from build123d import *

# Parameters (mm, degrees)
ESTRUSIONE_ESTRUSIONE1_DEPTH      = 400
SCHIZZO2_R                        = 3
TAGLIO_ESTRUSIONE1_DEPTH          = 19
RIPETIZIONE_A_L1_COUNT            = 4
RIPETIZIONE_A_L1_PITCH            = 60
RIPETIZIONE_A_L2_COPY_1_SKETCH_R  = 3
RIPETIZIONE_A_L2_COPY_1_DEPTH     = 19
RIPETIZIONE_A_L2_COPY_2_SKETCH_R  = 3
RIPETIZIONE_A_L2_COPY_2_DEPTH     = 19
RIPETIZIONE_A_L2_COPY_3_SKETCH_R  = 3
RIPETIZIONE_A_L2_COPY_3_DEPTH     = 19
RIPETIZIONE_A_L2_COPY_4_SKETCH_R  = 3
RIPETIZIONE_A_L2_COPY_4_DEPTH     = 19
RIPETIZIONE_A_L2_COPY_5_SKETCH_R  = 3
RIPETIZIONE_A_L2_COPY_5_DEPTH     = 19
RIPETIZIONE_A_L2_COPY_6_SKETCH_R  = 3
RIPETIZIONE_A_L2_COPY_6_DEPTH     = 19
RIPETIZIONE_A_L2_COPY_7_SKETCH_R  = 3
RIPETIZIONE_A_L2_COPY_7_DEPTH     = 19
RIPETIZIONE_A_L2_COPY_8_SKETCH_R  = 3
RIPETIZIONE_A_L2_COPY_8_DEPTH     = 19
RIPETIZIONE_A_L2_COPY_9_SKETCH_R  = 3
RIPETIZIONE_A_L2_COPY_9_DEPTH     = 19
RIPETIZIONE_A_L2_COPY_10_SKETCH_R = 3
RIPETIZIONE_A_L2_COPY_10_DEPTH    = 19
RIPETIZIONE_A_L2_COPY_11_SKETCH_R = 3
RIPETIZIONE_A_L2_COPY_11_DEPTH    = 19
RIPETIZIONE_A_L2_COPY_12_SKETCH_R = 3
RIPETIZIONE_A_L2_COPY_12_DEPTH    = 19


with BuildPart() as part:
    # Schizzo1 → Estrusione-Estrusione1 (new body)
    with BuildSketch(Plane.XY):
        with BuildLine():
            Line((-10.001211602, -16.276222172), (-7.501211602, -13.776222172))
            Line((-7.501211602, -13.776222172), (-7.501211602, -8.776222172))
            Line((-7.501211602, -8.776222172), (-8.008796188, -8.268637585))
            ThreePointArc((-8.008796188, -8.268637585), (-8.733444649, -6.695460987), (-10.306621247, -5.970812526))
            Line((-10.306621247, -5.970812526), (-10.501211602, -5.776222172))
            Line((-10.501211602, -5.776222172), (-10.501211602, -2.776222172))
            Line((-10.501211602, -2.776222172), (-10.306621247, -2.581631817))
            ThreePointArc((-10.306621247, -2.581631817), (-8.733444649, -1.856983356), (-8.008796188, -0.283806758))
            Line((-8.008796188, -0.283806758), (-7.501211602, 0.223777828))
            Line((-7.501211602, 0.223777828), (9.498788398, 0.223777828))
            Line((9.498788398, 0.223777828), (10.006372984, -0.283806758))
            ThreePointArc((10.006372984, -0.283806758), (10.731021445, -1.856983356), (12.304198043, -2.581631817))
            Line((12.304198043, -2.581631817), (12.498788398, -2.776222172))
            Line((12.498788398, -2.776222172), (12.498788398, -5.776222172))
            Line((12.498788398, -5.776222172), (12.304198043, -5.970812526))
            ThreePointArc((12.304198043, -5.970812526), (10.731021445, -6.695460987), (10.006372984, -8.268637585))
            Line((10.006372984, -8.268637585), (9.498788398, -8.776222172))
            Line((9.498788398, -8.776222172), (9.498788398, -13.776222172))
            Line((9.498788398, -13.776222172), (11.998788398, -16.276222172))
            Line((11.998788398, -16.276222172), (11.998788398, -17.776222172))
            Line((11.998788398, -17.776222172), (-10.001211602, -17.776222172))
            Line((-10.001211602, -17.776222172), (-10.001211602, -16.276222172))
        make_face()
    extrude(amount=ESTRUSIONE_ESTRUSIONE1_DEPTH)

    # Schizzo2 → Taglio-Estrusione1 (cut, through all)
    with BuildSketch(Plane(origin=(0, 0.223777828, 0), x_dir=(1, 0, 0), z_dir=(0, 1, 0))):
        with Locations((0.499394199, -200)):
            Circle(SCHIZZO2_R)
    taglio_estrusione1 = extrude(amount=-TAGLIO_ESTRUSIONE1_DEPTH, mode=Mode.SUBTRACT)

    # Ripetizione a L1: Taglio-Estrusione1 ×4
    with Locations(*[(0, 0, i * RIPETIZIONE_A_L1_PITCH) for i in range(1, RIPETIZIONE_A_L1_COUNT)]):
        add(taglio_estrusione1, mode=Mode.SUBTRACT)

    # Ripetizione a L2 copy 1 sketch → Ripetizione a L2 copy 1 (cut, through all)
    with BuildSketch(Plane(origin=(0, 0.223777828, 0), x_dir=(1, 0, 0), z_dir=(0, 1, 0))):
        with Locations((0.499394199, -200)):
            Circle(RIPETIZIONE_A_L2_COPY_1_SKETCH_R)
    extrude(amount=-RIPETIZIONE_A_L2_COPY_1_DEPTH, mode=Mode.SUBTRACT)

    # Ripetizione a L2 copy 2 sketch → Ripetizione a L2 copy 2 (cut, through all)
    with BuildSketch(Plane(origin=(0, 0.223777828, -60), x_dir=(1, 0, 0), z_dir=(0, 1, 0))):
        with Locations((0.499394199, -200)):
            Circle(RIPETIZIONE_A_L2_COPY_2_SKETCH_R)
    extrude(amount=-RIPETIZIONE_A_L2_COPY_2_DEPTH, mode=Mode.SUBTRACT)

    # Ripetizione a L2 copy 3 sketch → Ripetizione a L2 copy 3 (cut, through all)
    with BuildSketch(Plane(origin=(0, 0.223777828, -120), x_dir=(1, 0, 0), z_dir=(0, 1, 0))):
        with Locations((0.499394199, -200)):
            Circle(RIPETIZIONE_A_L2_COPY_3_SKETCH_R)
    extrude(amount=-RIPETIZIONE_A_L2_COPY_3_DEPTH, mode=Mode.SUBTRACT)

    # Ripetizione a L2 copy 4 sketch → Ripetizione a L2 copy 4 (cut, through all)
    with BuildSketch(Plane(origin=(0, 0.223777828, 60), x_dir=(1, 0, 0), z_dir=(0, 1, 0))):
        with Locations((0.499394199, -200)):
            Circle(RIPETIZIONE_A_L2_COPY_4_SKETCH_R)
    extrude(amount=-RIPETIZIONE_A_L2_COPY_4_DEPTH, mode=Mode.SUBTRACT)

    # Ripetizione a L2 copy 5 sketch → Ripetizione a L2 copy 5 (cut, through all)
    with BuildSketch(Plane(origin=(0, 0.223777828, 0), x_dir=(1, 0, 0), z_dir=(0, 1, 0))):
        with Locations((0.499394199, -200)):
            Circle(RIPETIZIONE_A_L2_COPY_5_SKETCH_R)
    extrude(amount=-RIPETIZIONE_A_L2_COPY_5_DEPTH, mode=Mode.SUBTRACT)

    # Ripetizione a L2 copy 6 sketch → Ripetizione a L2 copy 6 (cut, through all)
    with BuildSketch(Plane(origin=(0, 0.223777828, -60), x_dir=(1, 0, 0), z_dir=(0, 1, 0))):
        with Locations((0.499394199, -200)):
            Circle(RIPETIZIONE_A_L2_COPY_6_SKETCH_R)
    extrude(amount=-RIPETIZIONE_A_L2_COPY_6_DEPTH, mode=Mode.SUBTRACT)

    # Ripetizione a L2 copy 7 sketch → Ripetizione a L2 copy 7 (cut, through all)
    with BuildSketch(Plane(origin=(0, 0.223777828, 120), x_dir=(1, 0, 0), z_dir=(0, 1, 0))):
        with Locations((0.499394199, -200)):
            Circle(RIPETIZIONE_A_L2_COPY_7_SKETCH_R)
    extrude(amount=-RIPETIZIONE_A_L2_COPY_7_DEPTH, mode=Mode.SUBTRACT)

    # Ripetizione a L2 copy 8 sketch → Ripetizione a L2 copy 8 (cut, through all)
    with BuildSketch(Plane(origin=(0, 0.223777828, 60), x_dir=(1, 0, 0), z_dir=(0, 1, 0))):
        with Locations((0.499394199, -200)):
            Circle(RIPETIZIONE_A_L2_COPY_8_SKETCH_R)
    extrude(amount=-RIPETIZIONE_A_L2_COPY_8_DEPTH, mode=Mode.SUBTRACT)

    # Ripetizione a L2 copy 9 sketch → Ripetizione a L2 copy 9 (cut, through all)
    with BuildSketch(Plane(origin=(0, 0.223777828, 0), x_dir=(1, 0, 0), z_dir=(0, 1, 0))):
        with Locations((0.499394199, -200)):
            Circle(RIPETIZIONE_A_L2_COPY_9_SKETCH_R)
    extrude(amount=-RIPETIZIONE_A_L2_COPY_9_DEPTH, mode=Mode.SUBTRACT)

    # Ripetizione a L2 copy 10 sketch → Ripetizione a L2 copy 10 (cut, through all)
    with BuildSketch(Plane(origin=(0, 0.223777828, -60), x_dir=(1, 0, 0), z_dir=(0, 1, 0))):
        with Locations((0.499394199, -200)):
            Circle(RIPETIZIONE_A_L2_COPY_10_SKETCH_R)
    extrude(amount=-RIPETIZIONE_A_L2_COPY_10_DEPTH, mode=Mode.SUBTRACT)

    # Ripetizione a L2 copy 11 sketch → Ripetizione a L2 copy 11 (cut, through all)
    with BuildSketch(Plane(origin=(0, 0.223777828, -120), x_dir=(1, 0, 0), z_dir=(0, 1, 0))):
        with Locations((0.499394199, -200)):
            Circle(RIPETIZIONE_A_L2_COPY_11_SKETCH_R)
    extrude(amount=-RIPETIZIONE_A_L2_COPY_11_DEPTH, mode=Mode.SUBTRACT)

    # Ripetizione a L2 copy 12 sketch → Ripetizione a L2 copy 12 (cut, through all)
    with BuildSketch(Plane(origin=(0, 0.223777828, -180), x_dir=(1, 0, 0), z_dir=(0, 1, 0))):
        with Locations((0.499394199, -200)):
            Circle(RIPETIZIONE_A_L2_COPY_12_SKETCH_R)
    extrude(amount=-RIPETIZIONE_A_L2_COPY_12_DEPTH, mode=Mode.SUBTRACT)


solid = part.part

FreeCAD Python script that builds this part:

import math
import FreeCAD as App
import Part
import Sketcher
from FreeCAD import Vector

doc = App.newDocument("Part")
params = doc.addObject("Spreadsheet::Sheet", "Params")
for row, (alias, value) in enumerate([
    ("sketch1_radius", "2.5 mm"),
    ("sketch1_width", "22 mm"),
    ("sketch1_width2", "17 mm"),
    ("sketch1_height", "5 mm"),
    ("sketch1_height2", "3 mm"),
    ("pad1_length", "400 mm"),
    ("sketch2_diameter", "6 mm"),
    ("linearpattern_pitch", "60 mm"),
    ("sketch3_diameter", "6 mm"),
    ("sketch4_diameter", "6 mm"),
    ("sketch5_diameter", "6 mm"),
    ("sketch6_diameter", "6 mm"),
    ("sketch7_diameter", "6 mm"),
    ("sketch8_diameter", "6 mm"),
    ("sketch9_diameter", "6 mm"),
    ("sketch10_diameter", "6 mm"),
    ("sketch11_diameter", "6 mm"),
    ("sketch12_diameter", "6 mm"),
    ("sketch13_diameter", "6 mm"),
    ("sketch14_diameter", "6 mm"),
], start=1):
    params.set(f"A{row}", alias)
    params.set(f"B{row}", "=" + value)
    params.setAlias(f"B{row}", alias)

body = doc.addObject("PartDesign::Body", "Body")

# Sketch on XY plane
sketch1 = body.newObject("Sketcher::SketchObject", "Sketch")
sketch1.AttachmentSupport = (doc.getObject("XY_Plane"), [""])
sketch1.MapMode = "FlatFace"
sketch1.addGeometry([
    Part.LineSegment(Vector(-7.5, -13.78, 0), Vector(-10, -16.28, 0)),  # 0
    Part.LineSegment(Vector(-10, -16.28, 0), Vector(-10, -17.78, 0)),  # 1
    Part.LineSegment(Vector(-10, -17.78, 0), Vector(12, -17.78, 0)),  # 2
    Part.LineSegment(Vector(12, -17.78, 0), Vector(12, -16.28, 0)),  # 3
    Part.LineSegment(Vector(12, -16.28, 0), Vector(9.5, -13.78, 0)),  # 4
    Part.LineSegment(Vector(9.5, -13.78, 0), Vector(9.5, -8.78, 0)),  # 5
    Part.LineSegment(Vector(9.5, -8.78, 0), Vector(10.01, -8.27, 0)),  # 6
    Part.ArcOfCircle(Part.Circle(Vector(12.5, -8.46, 0), Vector(0, 0, 1), 2.5), math.radians(94), math.radians(176)),  # 7
    Part.LineSegment(Vector(12.3, -5.97, 0), Vector(12.5, -5.78, 0)),  # 8
    Part.LineSegment(Vector(12.5, -5.78, 0), Vector(12.5, -2.78, 0)),  # 9
    Part.LineSegment(Vector(12.5, -2.78, 0), Vector(12.3, -2.58, 0)),  # 10
    Part.ArcOfCircle(Part.Circle(Vector(12.5, -0.09, 0), Vector(0, 0, 1), 2.5), math.radians(-176), math.radians(-94)),  # 11
    Part.LineSegment(Vector(10.01, -0.28, 0), Vector(9.5, 0.22, 0)),  # 12
    Part.LineSegment(Vector(9.5, 0.22, 0), Vector(-7.5, 0.22, 0)),  # 13
    Part.LineSegment(Vector(-7.5, 0.22, 0), Vector(-8.01, -0.28, 0)),  # 14
    Part.ArcOfCircle(Part.Circle(Vector(-10.5, -0.09, 0), Vector(0, 0, 1), 2.5), math.radians(-86), math.radians(-4)),  # 15
    Part.LineSegment(Vector(-10.31, -2.58, 0), Vector(-10.5, -2.78, 0)),  # 16
    Part.LineSegment(Vector(-10.5, -2.78, 0), Vector(-10.5, -5.78, 0)),  # 17
    Part.LineSegment(Vector(-10.5, -5.78, 0), Vector(-10.31, -5.97, 0)),  # 18
    Part.ArcOfCircle(Part.Circle(Vector(-10.5, -8.46, 0), Vector(0, 0, 1), 2.5), math.radians(4), math.radians(86)),  # 19
    Part.LineSegment(Vector(-8.01, -8.27, 0), Vector(-7.5, -8.78, 0)),  # 20
    Part.LineSegment(Vector(-7.5, -8.78, 0), Vector(-7.5, -13.78, 0)),  # 21
], False)
sketch1.addConstraint([
    Sketcher.Constraint("Coincident", 0, 2, 1, 1),
    Sketcher.Constraint("Coincident", 1, 2, 2, 1),
    Sketcher.Constraint("Coincident", 2, 2, 3, 1),
    Sketcher.Constraint("Coincident", 3, 2, 4, 1),
    Sketcher.Constraint("Coincident", 4, 2, 5, 1),
    Sketcher.Constraint("Coincident", 5, 2, 6, 1),
    Sketcher.Constraint("Coincident", 6, 2, 7, 2),
    Sketcher.Constraint("Coincident", 7, 1, 8, 1),
    Sketcher.Constraint("Coincident", 8, 2, 9, 1),
    Sketcher.Constraint("Coincident", 9, 2, 10, 1),
    Sketcher.Constraint("Coincident", 10, 2, 11, 2),
    Sketcher.Constraint("Coincident", 11, 1, 12, 1),
    Sketcher.Constraint("Coincident", 12, 2, 13, 1),
    Sketcher.Constraint("Coincident", 13, 2, 14, 1),
    Sketcher.Constraint("Coincident", 14, 2, 15, 2),
    Sketcher.Constraint("Coincident", 15, 1, 16, 1),
    Sketcher.Constraint("Coincident", 16, 2, 17, 1),
    Sketcher.Constraint("Coincident", 17, 2, 18, 1),
    Sketcher.Constraint("Coincident", 18, 2, 19, 2),
    Sketcher.Constraint("Coincident", 19, 1, 20, 1),
    Sketcher.Constraint("Coincident", 20, 2, 21, 1),
    Sketcher.Constraint("Coincident", 21, 2, 0, 1),
    Sketcher.Constraint("Vertical", 1),
    Sketcher.Constraint("Horizontal", 2),
    Sketcher.Constraint("Vertical", 3),
    Sketcher.Constraint("Vertical", 5),
    Sketcher.Constraint("Vertical", 9),
    Sketcher.Constraint("Horizontal", 13),
    Sketcher.Constraint("Vertical", 17),
    Sketcher.Constraint("Vertical", 21),
    Sketcher.Constraint("Equal", 7, 11),
    Sketcher.Constraint("Equal", 11, 15),
    Sketcher.Constraint("Equal", 15, 19),
    Sketcher.Constraint("Perpendicular", 0, 4),
    Sketcher.Constraint("Perpendicular", 4, 6),
    Sketcher.Constraint("Parallel", 6, 8),
    Sketcher.Constraint("Perpendicular", 8, 10),
    Sketcher.Constraint("Parallel", 10, 12),
    Sketcher.Constraint("Perpendicular", 12, 14),
    Sketcher.Constraint("Parallel", 14, 16),
    Sketcher.Constraint("Perpendicular", 16, 18),
    Sketcher.Constraint("Parallel", 18, 20),
    Sketcher.Constraint("Horizontal", 11, 3, 15, 3),
    Sketcher.Constraint("Horizontal", 7, 3, 19, 3),
    Sketcher.Constraint("Horizontal", 0, 2, 3, 2),
    Sketcher.Constraint("Horizontal", 11, 1, 14, 2),
    Sketcher.Constraint("Horizontal", 10, 2, 15, 1),
    Sketcher.Constraint("Horizontal", 9, 2, 16, 2),
    Sketcher.Constraint("Horizontal", 8, 2, 17, 2),
    Sketcher.Constraint("Horizontal", 7, 1, 18, 2),
    Sketcher.Constraint("Horizontal", 6, 2, 19, 1),
    Sketcher.Constraint("Horizontal", 5, 2, 20, 2),
    Sketcher.Constraint("Horizontal", 4, 2, 21, 2),
    Sketcher.Constraint("Vertical", 7, 3, 11, 3),
    Sketcher.Constraint("Vertical", 15, 3, 19, 3),
    Sketcher.Constraint("Vertical", 11, 3, 8, 2),
    Sketcher.Constraint("Vertical", 7, 1, 10, 2),
    Sketcher.Constraint("Vertical", 6, 2, 11, 1),
    Sketcher.Constraint("Vertical", 5, 2, 12, 2),
    Sketcher.Constraint("Radius", 7, 2.5),
    Sketcher.Constraint("DistanceX", 2, 1, 2, 2, 22.0),
    Sketcher.Constraint("DistanceX", 13, 2, 13, 1, 17.0),
    Sketcher.Constraint("DistanceY", 5, 1, 5, 2, 5.0),
    Sketcher.Constraint("DistanceY", 9, 1, 9, 2, 3.0),
    Sketcher.Constraint("DistanceY", 1, 2, 1, 1, 1.5),
    Sketcher.Constraint("DistanceX", 15, 3, 11, 3, 23.0),
    Sketcher.Constraint("DistanceY", 5, 2, 8, 2, 3.0),
    Sketcher.Constraint("DistanceX", -1, 1, 7, 1, 12.304198),
    Sketcher.Constraint("DistanceX", -1, 1, 7, 3, 12.498788),
    Sketcher.Constraint("DistanceY", 10, 2, -1, 1, 2.581632),
])
sketch1.setExpression("Constraints[59]", "Params.sketch1_radius")
sketch1.setExpression("Constraints[60]", "Params.sketch1_width")
sketch1.setExpression("Constraints[61]", "Params.sketch1_width2")
sketch1.setExpression("Constraints[62]", "Params.sketch1_height")
sketch1.setExpression("Constraints[63]", "Params.sketch1_height2")
pad1 = body.newObject("PartDesign::Pad", "Pad")
pad1.Profile = sketch1
pad1.setExpression("Length", "Params.pad1_length")

# Sketch on XZ plane
sketch2 = body.newObject("Sketcher::SketchObject", "Sketch001")
sketch2.AttachmentSupport = (doc.getObject("XZ_Plane"), [""])
sketch2.MapMode = "FlatFace"
sketch2.AttachmentOffset = App.Placement(Vector(0, 0, -0.223778), App.Rotation())
sketch2.addGeometry(Part.Circle(Vector(0.5, 200, 0), Vector(0, 0, 1), 3), False)
sketch2.addConstraint([
    Sketcher.Constraint("Diameter", 0, 6.0),
    Sketcher.Constraint("DistanceY", -1, 1, 0, 3, 200.0),
    Sketcher.Constraint("DistanceX", -1, 1, 0, 3, 0.499394),
])
sketch2.setExpression("Constraints[0]", "Params.sketch2_diameter")
pocket1 = body.newObject("PartDesign::Pocket", "Pocket")
pocket1.Profile = sketch2
pocket1.Type = "ThroughAll"
pocket1.Reversed = True
doc.recompute()

linearpattern = body.newObject("PartDesign::LinearPattern", "LinearPattern")
linearpattern.Originals = [pocket1]
linearpattern.Direction = (doc.getObject("Z_Axis"), [""])
linearpattern.Mode = "offset"
linearpattern.setExpression("Offset", "Params.linearpattern_pitch")
linearpattern.Occurrences = 4
body.Tip = linearpattern

# Sketch on XZ plane
sketch3 = body.newObject("Sketcher::SketchObject", "Sketch002")
sketch3.AttachmentSupport = (doc.getObject("XZ_Plane"), [""])
sketch3.MapMode = "FlatFace"
sketch3.AttachmentOffset = App.Placement(Vector(0, 0, -0.223778), App.Rotation())
sketch3.addGeometry(Part.Circle(Vector(0.5, 200, 0), Vector(0, 0, 1), 3), False)
sketch3.addConstraint([
    Sketcher.Constraint("Diameter", 0, 6.0),
    Sketcher.Constraint("DistanceY", -1, 1, 0, 3, 200.0),
    Sketcher.Constraint("DistanceX", -1, 1, 0, 3, 0.499394),
])
sketch3.setExpression("Constraints[0]", "Params.sketch3_diameter")
pocket2 = body.newObject("PartDesign::Pocket", "Pocket001")
pocket2.Profile = sketch3
pocket2.Type = "ThroughAll"
pocket2.Reversed = True

# Sketch on XZ plane
sketch4 = body.newObject("Sketcher::SketchObject", "Sketch003")
sketch4.AttachmentSupport = (doc.getObject("XZ_Plane"), [""])
sketch4.MapMode = "FlatFace"
sketch4.AttachmentOffset = App.Placement(Vector(0, 0, -0.223778), App.Rotation())
sketch4.addGeometry(Part.Circle(Vector(0.5, 140, 0), Vector(0, 0, 1), 3), False)
sketch4.addConstraint([
    Sketcher.Constraint("Diameter", 0, 6.0),
    Sketcher.Constraint("DistanceY", -1, 1, 0, 3, 140.0),
    Sketcher.Constraint("DistanceX", -1, 1, 0, 3, 0.499394),
])
sketch4.setExpression("Constraints[0]", "Params.sketch4_diameter")
pocket3 = body.newObject("PartDesign::Pocket", "Pocket002")
pocket3.Profile = sketch4
pocket3.Type = "ThroughAll"
pocket3.Reversed = True

# Sketch on XZ plane
sketch5 = body.newObject("Sketcher::SketchObject", "Sketch004")
sketch5.AttachmentSupport = (doc.getObject("XZ_Plane"), [""])
sketch5.MapMode = "FlatFace"
sketch5.AttachmentOffset = App.Placement(Vector(0, 0, -0.223778), App.Rotation())
sketch5.addGeometry(Part.Circle(Vector(0.5, 80, 0), Vector(0, 0, 1), 3), False)
sketch5.addConstraint([
    Sketcher.Constraint("Diameter", 0, 6.0),
    Sketcher.Constraint("DistanceY", -1, 1, 0, 3, 80.0),
    Sketcher.Constraint("DistanceX", -1, 1, 0, 3, 0.499394),
])
sketch5.setExpression("Constraints[0]", "Params.sketch5_diameter")
pocket4 = body.newObject("PartDesign::Pocket", "Pocket003")
pocket4.Profile = sketch5
pocket4.Type = "ThroughAll"
pocket4.Reversed = True

# Sketch on XZ plane
sketch6 = body.newObject("Sketcher::SketchObject", "Sketch005")
sketch6.AttachmentSupport = (doc.getObject("XZ_Plane"), [""])
sketch6.MapMode = "FlatFace"
sketch6.AttachmentOffset = App.Placement(Vector(0, 0, -0.223778), App.Rotation())
sketch6.addGeometry(Part.Circle(Vector(0.5, 260, 0), Vector(0, 0, 1), 3), False)
sketch6.addConstraint([
    Sketcher.Constraint("Diameter", 0, 6.0),
    Sketcher.Constraint("DistanceY", -1, 1, 0, 3, 260.0),
    Sketcher.Constraint("DistanceX", -1, 1, 0, 3, 0.499394),
])
sketch6.setExpression("Constraints[0]", "Params.sketch6_diameter")
pocket5 = body.newObject("PartDesign::Pocket", "Pocket004")
pocket5.Profile = sketch6
pocket5.Type = "ThroughAll"
pocket5.Reversed = True

# Sketch on XZ plane
sketch7 = body.newObject("Sketcher::SketchObject", "Sketch006")
sketch7.AttachmentSupport = (doc.getObject("XZ_Plane"), [""])
sketch7.MapMode = "FlatFace"
sketch7.AttachmentOffset = App.Placement(Vector(0, 0, -0.223778), App.Rotation())
sketch7.addGeometry(Part.Circle(Vector(0.5, 200, 0), Vector(0, 0, 1), 3), False)
sketch7.addConstraint([
    Sketcher.Constraint("Diameter", 0, 6.0),
    Sketcher.Constraint("DistanceY", -1, 1, 0, 3, 200.0),
    Sketcher.Constraint("DistanceX", -1, 1, 0, 3, 0.499394),
])
sketch7.setExpression("Constraints[0]", "Params.sketch7_diameter")
pocket6 = body.newObject("PartDesign::Pocket", "Pocket005")
pocket6.Profile = sketch7
pocket6.Type = "ThroughAll"
pocket6.Reversed = True

# Sketch on XZ plane
sketch8 = body.newObject("Sketcher::SketchObject", "Sketch007")
sketch8.AttachmentSupport = (doc.getObject("XZ_Plane"), [""])
sketch8.MapMode = "FlatFace"
sketch8.AttachmentOffset = App.Placement(Vector(0, 0, -0.223778), App.Rotation())
sketch8.addGeometry(Part.Circle(Vector(0.5, 140, 0), Vector(0, 0, 1), 3), False)
sketch8.addConstraint([
    Sketcher.Constraint("Diameter", 0, 6.0),
    Sketcher.Constraint("DistanceY", -1, 1, 0, 3, 140.0),
    Sketcher.Constraint("DistanceX", -1, 1, 0, 3, 0.499394),
])
sketch8.setExpression("Constraints[0]", "Params.sketch8_diameter")
pocket7 = body.newObject("PartDesign::Pocket", "Pocket006")
pocket7.Profile = sketch8
pocket7.Type = "ThroughAll"
pocket7.Reversed = True

# Sketch on XZ plane
sketch9 = body.newObject("Sketcher::SketchObject", "Sketch008")
sketch9.AttachmentSupport = (doc.getObject("XZ_Plane"), [""])
sketch9.MapMode = "FlatFace"
sketch9.AttachmentOffset = App.Placement(Vector(0, 0, -0.223778), App.Rotation())
sketch9.addGeometry(Part.Circle(Vector(0.5, 320, 0), Vector(0, 0, 1), 3), False)
sketch9.addConstraint([
    Sketcher.Constraint("Diameter", 0, 6.0),
    Sketcher.Constraint("DistanceY", -1, 1, 0, 3, 320.0),
    Sketcher.Constraint("DistanceX", -1, 1, 0, 3, 0.499394),
])
sketch9.setExpression("Constraints[0]", "Params.sketch9_diameter")
pocket8 = body.newObject("PartDesign::Pocket", "Pocket007")
pocket8.Profile = sketch9
pocket8.Type = "ThroughAll"
pocket8.Reversed = True

# Sketch on XZ plane
sketch10 = body.newObject("Sketcher::SketchObject", "Sketch009")
sketch10.AttachmentSupport = (doc.getObject("XZ_Plane"), [""])
sketch10.MapMode = "FlatFace"
sketch10.AttachmentOffset = App.Placement(Vector(0, 0, -0.223778), App.Rotation())
sketch10.addGeometry(Part.Circle(Vector(0.5, 260, 0), Vector(0, 0, 1), 3), False)
sketch10.addConstraint([
    Sketcher.Constraint("Diameter", 0, 6.0),
    Sketcher.Constraint("DistanceY", -1, 1, 0, 3, 260.0),
    Sketcher.Constraint("DistanceX", -1, 1, 0, 3, 0.499394),
])
sketch10.setExpression("Constraints[0]", "Params.sketch10_diameter")
pocket9 = body.newObject("PartDesign::Pocket", "Pocket008")
pocket9.Profile = sketch10
pocket9.Type = "ThroughAll"
pocket9.Reversed = True

# Sketch on XZ plane
sketch11 = body.newObject("Sketcher::SketchObject", "Sketch010")
sketch11.AttachmentSupport = (doc.getObject("XZ_Plane"), [""])
sketch11.MapMode = "FlatFace"
sketch11.AttachmentOffset = App.Placement(Vector(0, 0, -0.223778), App.Rotation())
sketch11.addGeometry(Part.Circle(Vector(0.5, 200, 0), Vector(0, 0, 1), 3), False)
sketch11.addConstraint([
    Sketcher.Constraint("Diameter", 0, 6.0),
    Sketcher.Constraint("DistanceY", -1, 1, 0, 3, 200.0),
    Sketcher.Constraint("DistanceX", -1, 1, 0, 3, 0.499394),
])
sketch11.setExpression("Constraints[0]", "Params.sketch11_diameter")
pocket10 = body.newObject("PartDesign::Pocket", "Pocket009")
pocket10.Profile = sketch11
pocket10.Type = "ThroughAll"
pocket10.Reversed = True

# Sketch on XZ plane
sketch12 = body.newObject("Sketcher::SketchObject", "Sketch011")
sketch12.AttachmentSupport = (doc.getObject("XZ_Plane"), [""])
sketch12.MapMode = "FlatFace"
sketch12.AttachmentOffset = App.Placement(Vector(0, 0, -0.223778), App.Rotation())
sketch12.addGeometry(Part.Circle(Vector(0.5, 140, 0), Vector(0, 0, 1), 3), False)
sketch12.addConstraint([
    Sketcher.Constraint("Diameter", 0, 6.0),
    Sketcher.Constraint("DistanceY", -1, 1, 0, 3, 140.0),
    Sketcher.Constraint("DistanceX", -1, 1, 0, 3, 0.499394),
])
sketch12.setExpression("Constraints[0]", "Params.sketch12_diameter")
pocket11 = body.newObject("PartDesign::Pocket", "Pocket010")
pocket11.Profile = sketch12
pocket11.Type = "ThroughAll"
pocket11.Reversed = True

# Sketch on XZ plane
sketch13 = body.newObject("Sketcher::SketchObject", "Sketch012")
sketch13.AttachmentSupport = (doc.getObject("XZ_Plane"), [""])
sketch13.MapMode = "FlatFace"
sketch13.AttachmentOffset = App.Placement(Vector(0, 0, -0.223778), App.Rotation())
sketch13.addGeometry(Part.Circle(Vector(0.5, 80, 0), Vector(0, 0, 1), 3), False)
sketch13.addConstraint([
    Sketcher.Constraint("Diameter", 0, 6.0),
    Sketcher.Constraint("DistanceY", -1, 1, 0, 3, 80.0),
    Sketcher.Constraint("DistanceX", -1, 1, 0, 3, 0.499394),
])
sketch13.setExpression("Constraints[0]", "Params.sketch13_diameter")
pocket12 = body.newObject("PartDesign::Pocket", "Pocket011")
pocket12.Profile = sketch13
pocket12.Type = "ThroughAll"
pocket12.Reversed = True

# Sketch on XZ plane
sketch14 = body.newObject("Sketcher::SketchObject", "Sketch013")
sketch14.AttachmentSupport = (doc.getObject("XZ_Plane"), [""])
sketch14.MapMode = "FlatFace"
sketch14.AttachmentOffset = App.Placement(Vector(0, 0, -0.223778), App.Rotation())
sketch14.addGeometry(Part.Circle(Vector(0.5, 20, 0), Vector(0, 0, 1), 3), False)
sketch14.addConstraint([
    Sketcher.Constraint("Diameter", 0, 6.0),
    Sketcher.Constraint("DistanceY", -1, 1, 0, 3, 20.0),
    Sketcher.Constraint("DistanceX", -1, 1, 0, 3, 0.499394),
])
sketch14.setExpression("Constraints[0]", "Params.sketch14_diameter")
pocket13 = body.newObject("PartDesign::Pocket", "Pocket012")
pocket13.Profile = sketch14
pocket13.Type = "ThroughAll"
pocket13.Reversed = True

doc.recompute()
